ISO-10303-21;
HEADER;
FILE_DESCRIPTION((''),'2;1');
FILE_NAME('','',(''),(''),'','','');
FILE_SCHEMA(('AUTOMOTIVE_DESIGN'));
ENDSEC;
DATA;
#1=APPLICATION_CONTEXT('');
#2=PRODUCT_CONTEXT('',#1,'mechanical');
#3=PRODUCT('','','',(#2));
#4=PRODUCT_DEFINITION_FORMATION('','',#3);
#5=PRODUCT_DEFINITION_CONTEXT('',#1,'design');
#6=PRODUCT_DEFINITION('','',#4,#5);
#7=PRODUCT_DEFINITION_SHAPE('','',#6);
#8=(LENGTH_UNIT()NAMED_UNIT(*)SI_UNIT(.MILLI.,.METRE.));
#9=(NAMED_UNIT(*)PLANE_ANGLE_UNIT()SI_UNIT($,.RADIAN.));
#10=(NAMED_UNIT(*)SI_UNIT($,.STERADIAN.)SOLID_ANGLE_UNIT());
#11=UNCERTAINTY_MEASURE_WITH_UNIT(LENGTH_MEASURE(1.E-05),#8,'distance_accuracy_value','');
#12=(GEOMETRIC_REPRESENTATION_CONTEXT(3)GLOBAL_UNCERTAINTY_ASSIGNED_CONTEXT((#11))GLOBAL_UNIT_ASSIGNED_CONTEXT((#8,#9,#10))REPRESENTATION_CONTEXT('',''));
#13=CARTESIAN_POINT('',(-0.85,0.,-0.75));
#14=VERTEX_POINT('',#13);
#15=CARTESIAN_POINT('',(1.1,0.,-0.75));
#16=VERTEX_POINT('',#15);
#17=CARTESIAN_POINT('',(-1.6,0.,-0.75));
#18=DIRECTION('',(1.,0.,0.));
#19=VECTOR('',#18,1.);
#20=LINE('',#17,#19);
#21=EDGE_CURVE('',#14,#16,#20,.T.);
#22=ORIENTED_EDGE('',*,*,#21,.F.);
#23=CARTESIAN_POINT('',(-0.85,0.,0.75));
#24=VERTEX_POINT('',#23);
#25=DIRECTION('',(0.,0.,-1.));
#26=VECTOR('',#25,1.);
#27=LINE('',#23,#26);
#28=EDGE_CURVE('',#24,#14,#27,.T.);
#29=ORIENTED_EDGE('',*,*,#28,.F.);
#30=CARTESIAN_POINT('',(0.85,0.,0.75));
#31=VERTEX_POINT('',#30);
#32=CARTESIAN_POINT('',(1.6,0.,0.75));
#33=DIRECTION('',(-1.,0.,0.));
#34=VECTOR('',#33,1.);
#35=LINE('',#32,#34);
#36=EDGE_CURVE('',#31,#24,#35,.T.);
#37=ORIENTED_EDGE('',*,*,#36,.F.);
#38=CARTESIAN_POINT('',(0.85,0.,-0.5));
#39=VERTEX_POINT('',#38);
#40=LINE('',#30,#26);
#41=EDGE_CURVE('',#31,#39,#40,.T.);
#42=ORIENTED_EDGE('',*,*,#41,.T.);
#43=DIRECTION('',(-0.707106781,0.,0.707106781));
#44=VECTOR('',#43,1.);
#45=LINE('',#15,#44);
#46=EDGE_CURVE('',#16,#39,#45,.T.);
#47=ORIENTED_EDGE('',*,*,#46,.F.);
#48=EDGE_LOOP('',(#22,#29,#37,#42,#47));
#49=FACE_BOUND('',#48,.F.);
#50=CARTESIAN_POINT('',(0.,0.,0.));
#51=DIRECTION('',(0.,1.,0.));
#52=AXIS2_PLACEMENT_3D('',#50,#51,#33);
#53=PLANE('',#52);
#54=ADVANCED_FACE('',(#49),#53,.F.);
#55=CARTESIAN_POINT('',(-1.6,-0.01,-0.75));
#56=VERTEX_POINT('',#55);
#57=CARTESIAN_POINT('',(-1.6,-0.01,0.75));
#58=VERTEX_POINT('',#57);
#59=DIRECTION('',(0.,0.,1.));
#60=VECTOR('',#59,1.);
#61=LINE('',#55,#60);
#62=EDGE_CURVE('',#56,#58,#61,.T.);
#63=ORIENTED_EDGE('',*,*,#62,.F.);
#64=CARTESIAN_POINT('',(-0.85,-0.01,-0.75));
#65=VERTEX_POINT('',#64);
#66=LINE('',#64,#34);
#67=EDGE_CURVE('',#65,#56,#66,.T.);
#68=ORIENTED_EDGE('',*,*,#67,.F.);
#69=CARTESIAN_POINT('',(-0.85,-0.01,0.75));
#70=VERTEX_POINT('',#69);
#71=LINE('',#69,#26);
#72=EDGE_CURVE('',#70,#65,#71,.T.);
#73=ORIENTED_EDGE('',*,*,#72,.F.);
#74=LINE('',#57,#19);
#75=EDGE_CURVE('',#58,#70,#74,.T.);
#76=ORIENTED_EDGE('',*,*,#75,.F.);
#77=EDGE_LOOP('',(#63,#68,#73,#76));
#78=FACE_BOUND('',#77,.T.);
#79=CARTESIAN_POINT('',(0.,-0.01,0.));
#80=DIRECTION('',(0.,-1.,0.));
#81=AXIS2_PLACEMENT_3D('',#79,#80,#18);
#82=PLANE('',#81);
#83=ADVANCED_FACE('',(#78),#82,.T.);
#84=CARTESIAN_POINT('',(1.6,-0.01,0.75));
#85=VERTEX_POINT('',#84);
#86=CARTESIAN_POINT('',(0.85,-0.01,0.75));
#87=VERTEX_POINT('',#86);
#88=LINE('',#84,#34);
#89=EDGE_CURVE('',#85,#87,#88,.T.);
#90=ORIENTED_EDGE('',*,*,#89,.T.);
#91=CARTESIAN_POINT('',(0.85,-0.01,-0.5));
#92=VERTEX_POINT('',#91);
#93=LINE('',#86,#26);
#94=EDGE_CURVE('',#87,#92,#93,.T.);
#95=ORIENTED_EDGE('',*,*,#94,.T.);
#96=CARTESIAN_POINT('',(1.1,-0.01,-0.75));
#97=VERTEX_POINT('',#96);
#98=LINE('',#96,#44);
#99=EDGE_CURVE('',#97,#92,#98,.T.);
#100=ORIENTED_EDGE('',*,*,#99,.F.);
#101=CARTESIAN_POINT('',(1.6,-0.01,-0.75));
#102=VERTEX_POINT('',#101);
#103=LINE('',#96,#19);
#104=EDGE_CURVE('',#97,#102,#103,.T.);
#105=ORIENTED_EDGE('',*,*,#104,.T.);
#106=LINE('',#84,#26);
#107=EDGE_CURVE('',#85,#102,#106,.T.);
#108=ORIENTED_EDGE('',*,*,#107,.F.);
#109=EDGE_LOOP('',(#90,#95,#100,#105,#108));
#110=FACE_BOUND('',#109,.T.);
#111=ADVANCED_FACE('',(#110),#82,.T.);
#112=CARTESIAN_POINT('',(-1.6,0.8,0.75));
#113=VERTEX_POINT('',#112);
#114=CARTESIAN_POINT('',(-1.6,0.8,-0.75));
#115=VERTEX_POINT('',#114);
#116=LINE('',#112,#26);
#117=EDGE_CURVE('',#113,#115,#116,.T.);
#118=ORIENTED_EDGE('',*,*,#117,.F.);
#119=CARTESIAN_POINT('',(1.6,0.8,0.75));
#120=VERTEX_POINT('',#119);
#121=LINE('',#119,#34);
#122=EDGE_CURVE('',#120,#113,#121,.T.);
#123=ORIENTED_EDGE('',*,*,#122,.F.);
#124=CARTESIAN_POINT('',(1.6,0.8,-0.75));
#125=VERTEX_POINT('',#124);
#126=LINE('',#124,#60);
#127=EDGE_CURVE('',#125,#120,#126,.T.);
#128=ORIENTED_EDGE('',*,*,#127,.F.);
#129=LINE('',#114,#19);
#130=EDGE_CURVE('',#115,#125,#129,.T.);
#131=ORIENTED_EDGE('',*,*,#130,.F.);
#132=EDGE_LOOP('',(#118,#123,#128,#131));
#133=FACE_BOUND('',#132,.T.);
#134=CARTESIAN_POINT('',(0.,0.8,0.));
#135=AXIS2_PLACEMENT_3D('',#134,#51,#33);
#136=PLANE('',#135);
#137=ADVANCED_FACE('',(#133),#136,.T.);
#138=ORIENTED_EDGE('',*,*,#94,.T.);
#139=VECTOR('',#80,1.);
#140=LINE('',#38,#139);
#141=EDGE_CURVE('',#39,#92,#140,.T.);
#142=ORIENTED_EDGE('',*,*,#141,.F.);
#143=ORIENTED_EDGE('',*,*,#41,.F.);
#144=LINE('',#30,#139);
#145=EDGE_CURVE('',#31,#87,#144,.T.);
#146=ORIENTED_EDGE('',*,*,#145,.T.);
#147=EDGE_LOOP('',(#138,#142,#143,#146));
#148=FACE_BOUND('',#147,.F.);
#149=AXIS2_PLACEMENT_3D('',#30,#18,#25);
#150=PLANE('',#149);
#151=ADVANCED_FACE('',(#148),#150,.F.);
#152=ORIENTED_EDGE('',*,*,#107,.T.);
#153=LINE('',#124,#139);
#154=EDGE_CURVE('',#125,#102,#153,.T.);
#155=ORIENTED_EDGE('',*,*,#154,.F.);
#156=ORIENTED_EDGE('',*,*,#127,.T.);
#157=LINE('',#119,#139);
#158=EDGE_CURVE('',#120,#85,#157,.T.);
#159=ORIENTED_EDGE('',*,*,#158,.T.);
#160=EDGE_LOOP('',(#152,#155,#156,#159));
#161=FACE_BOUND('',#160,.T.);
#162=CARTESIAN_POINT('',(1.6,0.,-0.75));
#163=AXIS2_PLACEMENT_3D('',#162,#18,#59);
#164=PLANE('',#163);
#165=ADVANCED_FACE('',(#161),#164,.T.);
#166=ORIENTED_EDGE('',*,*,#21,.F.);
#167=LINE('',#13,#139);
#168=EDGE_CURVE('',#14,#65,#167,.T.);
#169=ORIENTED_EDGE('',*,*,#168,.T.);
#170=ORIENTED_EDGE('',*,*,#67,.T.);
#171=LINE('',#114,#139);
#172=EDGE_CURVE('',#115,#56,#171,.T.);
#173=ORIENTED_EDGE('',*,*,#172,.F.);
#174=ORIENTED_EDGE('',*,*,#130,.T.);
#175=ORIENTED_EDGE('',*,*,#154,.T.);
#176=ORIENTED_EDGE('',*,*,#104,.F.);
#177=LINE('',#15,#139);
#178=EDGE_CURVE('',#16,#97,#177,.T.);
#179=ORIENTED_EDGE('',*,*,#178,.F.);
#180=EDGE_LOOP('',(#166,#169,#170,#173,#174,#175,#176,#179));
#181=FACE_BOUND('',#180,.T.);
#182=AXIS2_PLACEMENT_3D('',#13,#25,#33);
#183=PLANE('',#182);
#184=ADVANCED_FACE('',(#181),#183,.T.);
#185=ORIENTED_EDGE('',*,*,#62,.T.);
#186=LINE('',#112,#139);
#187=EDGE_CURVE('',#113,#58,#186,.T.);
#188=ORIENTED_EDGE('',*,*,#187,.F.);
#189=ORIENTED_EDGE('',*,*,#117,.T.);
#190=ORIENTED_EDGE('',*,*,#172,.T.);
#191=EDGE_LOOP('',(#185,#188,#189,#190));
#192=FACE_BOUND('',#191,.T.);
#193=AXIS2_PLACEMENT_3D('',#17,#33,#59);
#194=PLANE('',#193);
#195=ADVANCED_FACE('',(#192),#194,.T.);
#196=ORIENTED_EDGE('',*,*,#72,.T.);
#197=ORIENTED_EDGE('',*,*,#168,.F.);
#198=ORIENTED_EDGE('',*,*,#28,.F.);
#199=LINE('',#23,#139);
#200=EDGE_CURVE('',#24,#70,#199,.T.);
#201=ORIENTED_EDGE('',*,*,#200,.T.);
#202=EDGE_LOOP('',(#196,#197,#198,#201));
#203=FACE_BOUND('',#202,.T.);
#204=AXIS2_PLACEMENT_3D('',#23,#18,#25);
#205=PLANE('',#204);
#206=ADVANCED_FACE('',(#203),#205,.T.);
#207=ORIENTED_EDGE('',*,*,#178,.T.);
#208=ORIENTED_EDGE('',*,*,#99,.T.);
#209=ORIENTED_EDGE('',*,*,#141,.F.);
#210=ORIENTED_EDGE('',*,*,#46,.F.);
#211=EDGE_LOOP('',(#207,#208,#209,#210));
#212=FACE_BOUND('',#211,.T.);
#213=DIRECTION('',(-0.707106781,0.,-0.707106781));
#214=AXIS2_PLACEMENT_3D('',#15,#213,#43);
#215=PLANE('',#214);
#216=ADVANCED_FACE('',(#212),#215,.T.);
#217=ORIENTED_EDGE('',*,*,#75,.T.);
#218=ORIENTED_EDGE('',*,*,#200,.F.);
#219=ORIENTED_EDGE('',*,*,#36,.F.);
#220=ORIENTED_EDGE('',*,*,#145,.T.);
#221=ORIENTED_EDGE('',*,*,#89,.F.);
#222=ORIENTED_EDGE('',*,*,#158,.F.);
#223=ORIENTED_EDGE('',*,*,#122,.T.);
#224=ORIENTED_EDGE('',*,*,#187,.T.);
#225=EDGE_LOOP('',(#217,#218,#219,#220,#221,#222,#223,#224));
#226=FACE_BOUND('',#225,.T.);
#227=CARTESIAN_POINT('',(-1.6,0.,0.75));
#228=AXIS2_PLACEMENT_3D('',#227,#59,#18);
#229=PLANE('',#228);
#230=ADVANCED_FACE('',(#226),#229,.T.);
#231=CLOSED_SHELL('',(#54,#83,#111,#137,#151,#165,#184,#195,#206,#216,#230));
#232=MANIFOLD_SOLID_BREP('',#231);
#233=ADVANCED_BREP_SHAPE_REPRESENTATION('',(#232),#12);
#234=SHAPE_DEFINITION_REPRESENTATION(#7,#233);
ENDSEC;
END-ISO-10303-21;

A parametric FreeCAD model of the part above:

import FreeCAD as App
import Part
import Sketcher
from FreeCAD import Vector
Q = App.Units.Quantity

doc = App.newDocument("Part")
body = doc.addObject("PartDesign::Body", "Body")

# Sketch on XZ plane
sketch1 = body.newObject("Sketcher::SketchObject", "Sketch")
sketch1.AttachmentSupport = (doc.getObject("XZ_Plane"), [""])
sketch1.MapMode = "FlatFace"
sketch1.addGeometry(Part.LineSegment(Vector(1.6, -0.8, 0), Vector(-1.6, -0.8, 0)), False)
sketch1.addGeometry(Part.LineSegment(Vector(-1.6, -0.8, 0), Vector(-1.6, 0.8, 0)), False)
sketch1.addGeometry(Part.LineSegment(Vector(-1.6, 0.8, 0), Vector(1.6, 0.8, 0)), False)
sketch1.addGeometry(Part.LineSegment(Vector(1.6, 0.8, 0), Vector(1.6, -0.8, 0)), False)
sketch1.addConstraint(Sketcher.Constraint("Coincident", 0, 2, 1, 1))
sketch1.addConstraint(Sketcher.Constraint("Coincident", 1, 2, 2, 1))
sketch1.addConstraint(Sketcher.Constraint("Coincident", 2, 2, 3, 1))
sketch1.addConstraint(Sketcher.Constraint("Coincident", 3, 2, 0, 1))
sketch1.addConstraint(Sketcher.Constraint("Horizontal", 0))
sketch1.addConstraint(Sketcher.Constraint("Vertical", 1))
sketch1.addConstraint(Sketcher.Constraint("Horizontal", 2))
sketch1.addConstraint(Sketcher.Constraint("Vertical", 3))
sketch1.addConstraint(Sketcher.Constraint("Symmetric", 0, 2, 2, 2, -1, 1))
sketch1.addConstraint(Sketcher.Constraint("DistanceX", 0, 2, 0, 1, Q("3.2 mm")))
sketch1.addConstraint(Sketcher.Constraint("DistanceY", 1, 1, 1, 2, Q("1.5 mm")))
pad1 = body.newObject("PartDesign::Pad", "Pad")
pad1.Profile = sketch1
pad1.Length = 0.8
pad1.Reversed = True

# Sketch on XZ plane
sketch2 = body.newObject("Sketcher::SketchObject", "Sketch001")
sketch2.AttachmentSupport = (doc.getObject("XZ_Plane"), [""])
sketch2.MapMode = "FlatFace"
sketch2.addGeometry(Part.LineSegment(Vector(1.6, -0.75, 0), Vector(1.6, 0.75, 0)), False)
sketch2.addGeometry(Part.LineSegment(Vector(1.6, 0.75, 0), Vector(0.85, 0.75, 0)), False)
sketch2.addGeometry(Part.LineSegment(Vector(0.85, 0.75, 0), Vector(0.85, -0.5, 0)), False)
sketch2.addGeometry(Part.LineSegment(Vector(0.85, -0.5, 0), Vector(1.1, -0.75, 0)), False)
sketch2.addGeometry(Part.LineSegment(Vector(1.1, -0.75, 0), Vector(1.6, -0.75, 0)), False)
sketch2.addConstraint(Sketcher.Constraint("Coincident", 0, 2, 1, 1))
sketch2.addConstraint(Sketcher.Constraint("Coincident", 1, 2, 2, 1))
sketch2.addConstraint(Sketcher.Constraint("Coincident", 2, 2, 3, 1))
sketch2.addConstraint(Sketcher.Constraint("Coincident", 3, 2, 4, 1))
sketch2.addConstraint(Sketcher.Constraint("Coincident", 4, 2, 0, 1))
sketch2.addConstraint(Sketcher.Constraint("Vertical", 0))
sketch2.addConstraint(Sketcher.Constraint("Horizontal", 1))
sketch2.addConstraint(Sketcher.Constraint("Vertical", 2))
sketch2.addConstraint(Sketcher.Constraint("Horizontal", 4))
sketch2.addConstraint(Sketcher.Constraint("DistanceX", 4, 1, 4, 2, Q("0.5 mm")))
sketch2.addConstraint(Sketcher.Constraint("DistanceX", 1, 2, 1, 1, Q("0.75 mm")))
sketch2.addConstraint(Sketcher.Constraint("DistanceY", 2, 2, -1, 1, Q("0.5 mm")))
sketch2.addConstraint(Sketcher.Constraint("DistanceY", -1, 1, 0, 2, Q("0.75 mm")))
sketch2.addConstraint(Sketcher.Constraint("DistanceY", 3, 2, -1, 1, Q("0.75 mm")))
sketch2.addConstraint(Sketcher.Constraint("DistanceX", -1, 1, 0, 2, Q("1.6 mm")))
pad2 = body.newObject("PartDesign::Pad", "Pad001")
pad2.Profile = sketch2
pad2.Length = 0.01

# Sketch on XZ plane
sketch3 = body.newObject("Sketcher::SketchObject", "Sketch002")
sketch3.AttachmentSupport = (doc.getObject("XZ_Plane"), [""])
sketch3.MapMode = "FlatFace"
sketch3.addGeometry(Part.LineSegment(Vector(-0.8, 0.8, 0), Vector(-1.6, 0.8, 0)), False)
sketch3.addGeometry(Part.LineSegment(Vector(-1.6, 0.8, 0), Vector(-1.6, -0.8, 0)), False)
sketch3.addGeometry(Part.LineSegment(Vector(-1.6, -0.8, 0), Vector(-0.8, -0.8, 0)), False)
sketch3.addGeometry(Part.LineSegment(Vector(-0.8, -0.8, 0), Vector(-0.8, 0.8, 0)), False)
sketch3.addConstraint(Sketcher.Constraint("Coincident", 0, 2, 1, 1))
sketch3.addConstraint(Sketcher.Constraint("Coincident", 1, 2, 2, 1))
sketch3.addConstraint(Sketcher.Constraint("Coincident", 2, 2, 3, 1))
sketch3.addConstraint(Sketcher.Constraint("Coincident", 3, 2, 0, 1))
sketch3.addConstraint(Sketcher.Constraint("Horizontal", 0))
sketch3.addConstraint(Sketcher.Constraint("Vertical", 1))
sketch3.addConstraint(Sketcher.Constraint("Horizontal", 2))
sketch3.addConstraint(Sketcher.Constraint("Vertical", 3))
sketch3.addConstraint(Sketcher.Constraint("DistanceY", 1, 2, 1, 1, Q("1.5 mm")))
sketch3.addConstraint(Sketcher.Constraint("DistanceX", 0, 2, 0, 1, Q("0.75 mm")))
sketch3.addConstraint(Sketcher.Constraint("DistanceY", -1, 1, 0, 2, Q("0.75 mm")))
sketch3.addConstraint(Sketcher.Constraint("DistanceX", 0, 2, -1, 1, Q("1.6 mm")))
pad3 = body.newObject("PartDesign::Pad", "Pad002")
pad3.Profile = sketch3
pad3.Length = 0.01

doc.recompute()
